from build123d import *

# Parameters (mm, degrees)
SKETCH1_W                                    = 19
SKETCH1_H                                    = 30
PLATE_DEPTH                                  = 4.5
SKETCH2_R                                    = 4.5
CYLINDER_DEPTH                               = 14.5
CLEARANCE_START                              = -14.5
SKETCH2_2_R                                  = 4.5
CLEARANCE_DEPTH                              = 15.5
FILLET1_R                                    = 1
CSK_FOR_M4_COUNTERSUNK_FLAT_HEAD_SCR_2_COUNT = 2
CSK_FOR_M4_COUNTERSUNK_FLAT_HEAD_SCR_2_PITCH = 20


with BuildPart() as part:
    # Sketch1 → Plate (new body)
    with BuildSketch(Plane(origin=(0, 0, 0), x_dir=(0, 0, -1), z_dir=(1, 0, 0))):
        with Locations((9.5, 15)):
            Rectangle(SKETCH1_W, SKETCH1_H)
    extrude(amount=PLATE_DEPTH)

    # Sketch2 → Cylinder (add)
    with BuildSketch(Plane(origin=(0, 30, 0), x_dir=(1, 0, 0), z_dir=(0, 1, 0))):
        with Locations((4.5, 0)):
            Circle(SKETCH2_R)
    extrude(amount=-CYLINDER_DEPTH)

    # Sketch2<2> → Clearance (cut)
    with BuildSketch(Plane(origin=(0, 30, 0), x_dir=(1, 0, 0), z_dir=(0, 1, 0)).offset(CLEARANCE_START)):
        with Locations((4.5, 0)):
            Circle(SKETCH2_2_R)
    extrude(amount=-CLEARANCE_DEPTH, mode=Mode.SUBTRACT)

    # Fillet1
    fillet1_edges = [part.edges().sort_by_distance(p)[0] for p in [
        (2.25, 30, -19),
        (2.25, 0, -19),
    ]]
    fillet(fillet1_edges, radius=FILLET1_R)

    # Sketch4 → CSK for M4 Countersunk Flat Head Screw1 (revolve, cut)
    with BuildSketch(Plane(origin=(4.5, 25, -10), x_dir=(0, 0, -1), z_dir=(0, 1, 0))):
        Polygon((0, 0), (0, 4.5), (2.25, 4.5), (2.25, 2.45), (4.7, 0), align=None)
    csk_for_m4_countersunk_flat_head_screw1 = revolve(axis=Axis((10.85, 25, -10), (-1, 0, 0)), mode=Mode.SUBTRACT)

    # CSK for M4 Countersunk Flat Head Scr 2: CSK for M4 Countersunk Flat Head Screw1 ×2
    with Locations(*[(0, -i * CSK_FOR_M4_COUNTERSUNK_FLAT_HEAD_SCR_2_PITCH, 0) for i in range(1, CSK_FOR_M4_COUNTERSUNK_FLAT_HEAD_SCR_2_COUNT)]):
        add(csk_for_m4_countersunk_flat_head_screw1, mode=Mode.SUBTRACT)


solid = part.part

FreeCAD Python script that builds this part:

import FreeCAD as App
import Part
import Sketcher
from FreeCAD import Vector
Q = App.Units.Quantity


def edges_at(feature, points):
    """Names of the edges that pass closest to the given points."""
    edges = feature.Shape.Edges
    near = lambda p: min(range(len(edges)), key=lambda i: edges[i].distToShape(Part.Vertex(*p))[0])
    return sorted({f"Edge{near(p) + 1}" for p in points})

doc = App.newDocument("Part")
body = doc.addObject("PartDesign::Body", "Body")

sketch1 = body.newObject("Sketcher::SketchObject", "Sketch")
sketch1.AttachmentSupport = (doc.getObject("YZ_Plane"), [""])
sketch1.MapMode = "FlatFace"
sketch1.addGeometry(Part.LineSegment(Vector(30, 0, 0), Vector(0, 0, 0)), False)
sketch1.addGeometry(Part.LineSegment(Vector(0, 0, 0), Vector(0, -19, 0)), False)
sketch1.addGeometry(Part.LineSegment(Vector(0, -19, 0), Vector(30, -19, 0)), False)
sketch1.addGeometry(Part.LineSegment(Vector(30, -19, 0), Vector(30, 0, 0)), False)
sketch1.addConstraint(Sketcher.Constraint("Coincident", 0, 2, 1, 1))
sketch1.addConstraint(Sketcher.Constraint("Coincident", 1, 2, 2, 1))
sketch1.addConstraint(Sketcher.Constraint("Coincident", 2, 2, 3, 1))
sketch1.addConstraint(Sketcher.Constraint("Coincident", 3, 2, 0, 1))
sketch1.addConstraint(Sketcher.Constraint("Horizontal", 0))
sketch1.addConstraint(Sketcher.Constraint("Vertical", 1))
sketch1.addConstraint(Sketcher.Constraint("Horizontal", 2))
sketch1.addConstraint(Sketcher.Constraint("Vertical", 3))
sketch1.addConstraint(Sketcher.Constraint("Coincident", 0, 2, -1, 1))
sketch1.addConstraint(Sketcher.Constraint("DistanceX", 0, 2, 0, 1, 30.0))
sketch1.addConstraint(Sketcher.Constraint("DistanceY", 1, 2, 1, 1, 19.0))
pad1 = body.newObject("PartDesign::Pad", "Pad")
pad1.Profile = sketch1
pad1.Length = 4.5

sketch2 = body.newObject("Sketcher::SketchObject", "Sketch001")
sketch2.AttachmentSupport = (doc.getObject("XZ_Plane"), [""])
sketch2.MapMode = "FlatFace"
sketch2.AttachmentOffset = App.Placement(Vector(0, 0, -30), App.Rotation())
sketch2.addGeometry(Part.Circle(Vector(4.5, 0, 0), Vector(0, 0, 1), 4.5), False)
sketch2.addConstraint(Sketcher.Constraint("PointOnObject", 0, 3, -1))
sketch2.addConstraint(Sketcher.Constraint("Diameter", 0, 9.0))
sketch2.addConstraint(Sketcher.Constraint("DistanceX", -1, 1, 0, 3, 4.5))
pad2 = body.newObject("PartDesign::Pad", "Pad001")
pad2.Profile = sketch2
pad2.Length = 14.5

sketch3 = body.newObject("Sketcher::SketchObject", "Sketch002")
sketch3.AttachmentSupport = (doc.getObject("XZ_Plane"), [""])
sketch3.MapMode = "FlatFace"
sketch3.AttachmentOffset = App.Placement(Vector(0, 0, -15.5), App.Rotation())
sketch3.addGeometry(Part.Circle(Vector(4.5, 0, 0), Vector(0, 0, 1), 4.5), False)
sketch3.addConstraint(Sketcher.Constraint("PointOnObject", 0, 3, -1))
sketch3.addConstraint(Sketcher.Constraint("Diameter", 0, 9.0))
sketch3.addConstraint(Sketcher.Constraint("DistanceX", -1, 1, 0, 3, 4.5))
pocket1 = body.newObject("PartDesign::Pocket", "Pocket")
pocket1.Profile = sketch3
pocket1.Length = 15.5
pocket1.Reversed = True
doc.recompute()

fillet = body.newObject("PartDesign::Fillet", "Fillet")
fillet.Base = (pocket1, edges_at(pocket1, [(2.25, 30, -19), (2.25, 0, -19)]))
fillet.Radius = 1

sketch4 = body.newObject("Sketcher::SketchObject", "Sketch003")
sketch4.AttachmentSupport = (doc.getObject("XZ_Plane"), [""])
sketch4.MapMode = "FlatFace"
sketch4.AttachmentOffset = App.Placement(Vector(0, 0, -25), App.Rotation())
sketch4.addGeometry(Part.LineSegment(Vector(0, -10, 0), Vector(4.5, -10, 0)), False)
sketch4.addGeometry(Part.LineSegment(Vector(4.5, -10, 0), Vector(4.5, -14.7, 0)), False)
sketch4.addGeometry(Part.LineSegment(Vector(4.5, -14.7, 0), Vector(2, -12.2, 0)), False)
sketch4.addGeometry(Part.LineSegment(Vector(2, -12.2, 0), Vector(0, -12.2, 0)), False)
sketch4.addGeometry(Part.LineSegment(Vector(0, -12.2, 0), Vector(0, -10, 0)), False)
sketch4.addGeometry(Part.LineSegment(Vector(4.5, -10, 0), Vector(0, -10, 0)), True)
sketch4.addConstraint(Sketcher.Constraint("Coincident", 0, 2, 1, 1))
sketch4.addConstraint(Sketcher.Constraint("Coincident", 1, 2, 2, 1))
sketch4.addConstraint(Sketcher.Constraint("Coincident", 2, 2, 3, 1))
sketch4.addConstraint(Sketcher.Constraint("Coincident", 3, 2, 4, 1))
sketch4.addConstraint(Sketcher.Constraint("Coincident", 4, 2, 0, 1))
sketch4.addConstraint(Sketcher.Constraint("Horizontal", 0))
sketch4.addConstraint(Sketcher.Constraint("Vertical", 1))
sketch4.addConstraint(Sketcher.Constraint("Horizontal", 3))
sketch4.addConstraint(Sketcher.Constraint("Vertical", 4))
sketch4.addConstraint(Sketcher.Constraint("Horizontal", 5))
sketch4.addConstraint(Sketcher.Constraint("Coincident", 5, 1, 0, 2))
sketch4.addConstraint(Sketcher.Constraint("PointOnObject", 3, 2, -2))
sketch4.addConstraint(Sketcher.Constraint("PointOnObject", 5, 2, -2))
sketch4.addConstraint(Sketcher.Constraint("Angle", 2, Q("135 deg")))
sketch4.addConstraint(Sketcher.Constraint("DistanceX", 0, 1, 0, 2, 4.5))
sketch4.addConstraint(Sketcher.Constraint("DistanceY", 1, 2, 1, 1, 4.7))
sketch4.addConstraint(Sketcher.Constraint("DistanceY", 0, 2, -1, 1, 10.0))
sketch4.addConstraint(Sketcher.Constraint("DistanceX", 3, 2, 3, 1, 2.05))
groove = body.newObject("PartDesign::Groove", "Groove")
groove.Profile = sketch4
groove.ReferenceAxis = (sketch4, ["Axis0"])
groove.Angle = 360
doc.recompute()

linearpattern = body.newObject("PartDesign::LinearPattern", "LinearPattern")
linearpattern.Originals = [groove]
linearpattern.Direction = (doc.getObject("Y_Axis"), [""])
linearpattern.Mode = "offset"
linearpattern.Offset = 20
linearpattern.Occurrences = 2
linearpattern.Reversed = True
body.Tip = linearpattern

doc.recompute()
